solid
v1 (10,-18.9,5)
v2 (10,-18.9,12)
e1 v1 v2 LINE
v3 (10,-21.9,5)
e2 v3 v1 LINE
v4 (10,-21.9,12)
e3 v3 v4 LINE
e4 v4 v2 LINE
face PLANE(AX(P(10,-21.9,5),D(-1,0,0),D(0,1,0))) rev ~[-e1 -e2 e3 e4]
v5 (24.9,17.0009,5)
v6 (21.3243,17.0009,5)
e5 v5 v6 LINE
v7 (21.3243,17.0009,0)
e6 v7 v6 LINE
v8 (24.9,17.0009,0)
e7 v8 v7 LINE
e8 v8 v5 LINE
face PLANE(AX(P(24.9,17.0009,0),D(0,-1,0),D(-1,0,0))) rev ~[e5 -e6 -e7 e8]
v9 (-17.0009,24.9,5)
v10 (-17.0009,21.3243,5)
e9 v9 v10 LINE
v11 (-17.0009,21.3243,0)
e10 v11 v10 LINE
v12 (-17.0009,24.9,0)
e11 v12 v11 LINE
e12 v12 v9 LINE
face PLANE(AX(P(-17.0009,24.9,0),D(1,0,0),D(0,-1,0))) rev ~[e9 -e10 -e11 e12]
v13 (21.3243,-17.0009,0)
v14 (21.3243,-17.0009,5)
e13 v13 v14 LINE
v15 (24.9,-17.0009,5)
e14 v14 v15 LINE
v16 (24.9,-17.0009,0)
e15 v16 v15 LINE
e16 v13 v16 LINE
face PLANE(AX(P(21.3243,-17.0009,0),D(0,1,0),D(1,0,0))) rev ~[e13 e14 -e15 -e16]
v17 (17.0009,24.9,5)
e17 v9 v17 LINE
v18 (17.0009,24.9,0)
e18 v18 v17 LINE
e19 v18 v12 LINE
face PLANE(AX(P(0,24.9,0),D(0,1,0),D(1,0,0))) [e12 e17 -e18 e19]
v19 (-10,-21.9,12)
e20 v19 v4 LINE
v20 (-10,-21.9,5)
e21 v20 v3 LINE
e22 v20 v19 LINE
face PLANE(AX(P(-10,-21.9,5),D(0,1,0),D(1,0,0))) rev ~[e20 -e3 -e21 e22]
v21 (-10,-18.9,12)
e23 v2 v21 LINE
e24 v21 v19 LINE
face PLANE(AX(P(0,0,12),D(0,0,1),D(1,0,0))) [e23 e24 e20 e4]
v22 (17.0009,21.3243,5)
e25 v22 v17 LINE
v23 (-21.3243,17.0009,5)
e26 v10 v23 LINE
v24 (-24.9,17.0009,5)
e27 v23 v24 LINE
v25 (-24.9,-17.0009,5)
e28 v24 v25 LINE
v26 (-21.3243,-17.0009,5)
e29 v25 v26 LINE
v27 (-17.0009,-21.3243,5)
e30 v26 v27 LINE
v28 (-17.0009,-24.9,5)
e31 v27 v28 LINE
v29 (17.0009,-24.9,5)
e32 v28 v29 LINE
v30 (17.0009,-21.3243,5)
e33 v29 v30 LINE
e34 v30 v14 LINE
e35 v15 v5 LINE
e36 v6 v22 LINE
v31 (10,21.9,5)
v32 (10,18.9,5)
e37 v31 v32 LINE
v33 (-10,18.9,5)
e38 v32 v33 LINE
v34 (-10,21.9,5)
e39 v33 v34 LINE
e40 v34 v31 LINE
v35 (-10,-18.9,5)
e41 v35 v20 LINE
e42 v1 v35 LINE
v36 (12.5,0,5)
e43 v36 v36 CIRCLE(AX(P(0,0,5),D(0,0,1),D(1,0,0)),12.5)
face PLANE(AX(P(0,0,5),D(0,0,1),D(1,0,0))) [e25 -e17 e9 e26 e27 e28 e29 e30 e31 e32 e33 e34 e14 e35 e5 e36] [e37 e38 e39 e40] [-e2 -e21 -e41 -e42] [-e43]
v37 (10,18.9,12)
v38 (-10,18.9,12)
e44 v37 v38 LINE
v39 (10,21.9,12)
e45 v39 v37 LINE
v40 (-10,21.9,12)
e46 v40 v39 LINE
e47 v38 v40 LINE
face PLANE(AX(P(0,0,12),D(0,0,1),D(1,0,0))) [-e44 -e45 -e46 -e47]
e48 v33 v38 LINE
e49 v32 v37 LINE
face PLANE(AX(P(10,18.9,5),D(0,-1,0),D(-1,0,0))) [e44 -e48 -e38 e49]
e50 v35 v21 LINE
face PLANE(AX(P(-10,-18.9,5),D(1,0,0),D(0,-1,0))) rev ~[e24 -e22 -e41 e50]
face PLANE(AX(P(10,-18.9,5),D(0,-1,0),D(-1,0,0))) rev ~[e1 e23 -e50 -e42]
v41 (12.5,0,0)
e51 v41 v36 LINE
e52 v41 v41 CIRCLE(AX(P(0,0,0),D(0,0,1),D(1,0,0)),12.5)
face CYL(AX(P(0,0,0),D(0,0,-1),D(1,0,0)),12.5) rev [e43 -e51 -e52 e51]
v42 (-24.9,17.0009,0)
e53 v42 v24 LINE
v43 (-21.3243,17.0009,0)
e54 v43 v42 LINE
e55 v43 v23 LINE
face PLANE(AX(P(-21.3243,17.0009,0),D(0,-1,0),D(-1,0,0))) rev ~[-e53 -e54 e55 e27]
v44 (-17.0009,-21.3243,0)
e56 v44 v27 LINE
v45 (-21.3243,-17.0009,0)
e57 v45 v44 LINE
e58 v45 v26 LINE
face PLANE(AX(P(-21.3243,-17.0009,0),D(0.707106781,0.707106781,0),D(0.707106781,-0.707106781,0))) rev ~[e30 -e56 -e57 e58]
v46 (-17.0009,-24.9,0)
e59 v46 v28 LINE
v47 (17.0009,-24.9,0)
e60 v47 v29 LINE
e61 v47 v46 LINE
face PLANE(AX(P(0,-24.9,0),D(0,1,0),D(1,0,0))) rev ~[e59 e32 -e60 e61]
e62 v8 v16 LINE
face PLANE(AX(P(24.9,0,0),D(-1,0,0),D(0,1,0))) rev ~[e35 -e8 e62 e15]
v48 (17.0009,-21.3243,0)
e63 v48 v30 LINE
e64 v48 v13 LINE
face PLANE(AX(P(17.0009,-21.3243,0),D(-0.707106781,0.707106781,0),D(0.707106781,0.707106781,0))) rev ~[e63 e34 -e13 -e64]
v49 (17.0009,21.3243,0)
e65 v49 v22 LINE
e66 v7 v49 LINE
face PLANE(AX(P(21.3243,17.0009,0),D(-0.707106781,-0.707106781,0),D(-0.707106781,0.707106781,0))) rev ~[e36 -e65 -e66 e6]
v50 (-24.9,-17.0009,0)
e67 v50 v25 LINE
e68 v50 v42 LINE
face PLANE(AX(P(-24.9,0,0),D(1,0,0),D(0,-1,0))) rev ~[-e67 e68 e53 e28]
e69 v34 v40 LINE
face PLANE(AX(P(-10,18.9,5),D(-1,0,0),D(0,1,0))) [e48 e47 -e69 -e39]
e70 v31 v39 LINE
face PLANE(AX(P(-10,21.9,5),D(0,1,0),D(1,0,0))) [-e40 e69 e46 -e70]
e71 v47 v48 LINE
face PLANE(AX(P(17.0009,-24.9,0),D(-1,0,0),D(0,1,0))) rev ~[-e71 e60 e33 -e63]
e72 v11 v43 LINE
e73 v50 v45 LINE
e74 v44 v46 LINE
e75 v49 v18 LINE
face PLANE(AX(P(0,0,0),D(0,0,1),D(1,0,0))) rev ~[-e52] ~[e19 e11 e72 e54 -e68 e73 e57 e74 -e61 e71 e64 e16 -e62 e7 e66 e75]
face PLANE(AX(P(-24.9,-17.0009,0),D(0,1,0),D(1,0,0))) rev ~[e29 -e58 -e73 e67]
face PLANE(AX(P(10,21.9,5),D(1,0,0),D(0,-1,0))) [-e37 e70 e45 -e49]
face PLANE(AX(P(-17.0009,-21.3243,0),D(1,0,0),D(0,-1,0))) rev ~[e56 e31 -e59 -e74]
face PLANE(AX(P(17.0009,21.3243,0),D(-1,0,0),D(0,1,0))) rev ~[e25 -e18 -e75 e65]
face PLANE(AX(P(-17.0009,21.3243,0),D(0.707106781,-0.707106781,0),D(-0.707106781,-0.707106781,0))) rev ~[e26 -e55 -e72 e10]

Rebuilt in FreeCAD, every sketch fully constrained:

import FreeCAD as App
import Part
import Sketcher

V = App.Vector


def add_polygon(sketch, points):
    """Adds a closed chain of lines whose ends are joined by coincident constraints."""
    first, n = sketch.GeometryCount, len(points)
    for a, b in zip(points, points[1:] + points[:1]):
        sketch.addGeometry(Part.LineSegment(App.Vector(*a, 0), App.Vector(*b, 0)), False)
    for i in range(n):
        sketch.addConstraint(Sketcher.Constraint("Coincident", first + i, 2, first + (i + 1) % n, 1))

doc = App.newDocument("Part")
body = doc.addObject("PartDesign::Body", "Body")

# Sketch on XY plane
sketch1 = body.newObject("Sketcher::SketchObject", "Sketch")
sketch1.AttachmentSupport = (doc.getObject("XY_Plane"), [""])
sketch1.MapMode = "FlatFace"
add_polygon(sketch1, [(16.8009, 24.9), (-16.8009, 24.9), (-16.8009, 21.2415), (-21.2415, 16.8009), (-24.9, 16.8009), (-24.9, -16.8009), (-21.2415, -16.8009), (-16.8009, -21.2415), (-16.8009, -24.9), (16.8009, -24.9), (16.8009, -21.2415), (21.2415, -16.8009), (24.9, -16.8009), (24.9, 16.8009), (21.2415, 16.8009), (16.8009, 21.2415)])  # lines 0-15
sketch1.addGeometry(Part.Circle(V(0, 0, 0), V(0, 0, 1), 12.5), False)  # 16
sketch1.addConstraint([
    Sketcher.Constraint("Horizontal", 0),
    Sketcher.Constraint("Vertical", 1),
    Sketcher.Constraint("Horizontal", 3),
    Sketcher.Constraint("Vertical", 4),
    Sketcher.Constraint("Horizontal", 5),
    Sketcher.Constraint("Vertical", 7),
    Sketcher.Constraint("Horizontal", 8),
    Sketcher.Constraint("Vertical", 9),
    Sketcher.Constraint("Horizontal", 11),
    Sketcher.Constraint("Vertical", 12),
    Sketcher.Constraint("Horizontal", 13),
    Sketcher.Constraint("Vertical", 15),
    Sketcher.Constraint("Coincident", 16, 3, -1, 1),
    Sketcher.Constraint("Symmetric", 0, 2, 8, 2, -1, 1),
    Sketcher.Constraint("Symmetric", 2, 2, 10, 2, -1, 1),
    Sketcher.Constraint("Symmetric", 4, 2, 12, 2, -1, 1),
    Sketcher.Constraint("Symmetric", 6, 2, 14, 2, -1, 1),
    Sketcher.Constraint("Symmetric", 6, 2, 9, 2, -2),
    Sketcher.Constraint("Symmetric", 5, 2, 10, 2, -2),
    Sketcher.Constraint("Perpendicular", 2, 6),
    Sketcher.Constraint("Perpendicular", 6, 10),
    Sketcher.Constraint("Perpendicular", 10, 14),
    Sketcher.Constraint("Equal", 13, 1),
    Sketcher.Constraint("Equal", 8, 4),
    Sketcher.Constraint("Diameter", 16, 25.0),
    Sketcher.Constraint("DistanceY", -1, 1, 0, 2, 24.9),
    Sketcher.Constraint("Distance", 2, 6.28),
    Sketcher.Constraint("DistanceX", 0, 2, 0, 1, 33.6018),
])
pad1 = body.newObject("PartDesign::Pad", "Pad")
pad1.Profile = sketch1
pad1.Length = 5

# Sketch on XY plane
sketch2 = body.newObject("Sketcher::SketchObject", "Sketch001")
sketch2.AttachmentSupport = (doc.getObject("XY_Plane"), [""])
sketch2.MapMode = "FlatFace"
sketch2.AttachmentOffset = App.Placement(V(0, 0, 5), App.Rotation())
add_polygon(sketch2, [(10, 21.9), (-10, 21.9), (-10, 18.9), (10, 18.9)])  # lines 0-3
add_polygon(sketch2, [(-10, -18.9), (-10, -21.9), (10, -21.9), (10, -18.9)])  # lines 4-7
sketch2.addConstraint([
    Sketcher.Constraint("Horizontal", 0),
    Sketcher.Constraint("Vertical", 1),
    Sketcher.Constraint("Horizontal", 2),
    Sketcher.Constraint("Vertical", 3),
    Sketcher.Constraint("Vertical", 4),
    Sketcher.Constraint("Horizontal", 5),
    Sketcher.Constraint("Vertical", 6),
    Sketcher.Constraint("Horizontal", 7),
    Sketcher.Constraint("Symmetric", 3, 2, 4, 2, -1, 1),
    Sketcher.Constraint("Symmetric", 1, 2, 6, 2, -1, 1),
    Sketcher.Constraint("Vertical", 1, 2, 4, 2),
    Sketcher.Constraint("DistanceX", 0, 2, 0, 1, 20.0),
    Sketcher.Constraint("DistanceY", 1, 2, 1, 1, 3.0),
    Sketcher.Constraint("DistanceY", -1, 1, 0, 2, 21.9),
])
pad2 = body.newObject("PartDesign::Pad", "Pad001")
pad2.Profile = sketch2
pad2.Length = 7

# Sketch on XY plane
sketch3 = body.newObject("Sketcher::SketchObject", "Sketch002")
sketch3.AttachmentSupport = (doc.getObject("XY_Plane"), [""])
sketch3.MapMode = "FlatFace"
add_polygon(sketch3, [(16.8009, 21.2415), (16.8009, 24.9), (17.0009, 24.9), (17.0009, 21.3243), (21.3243, 17.0009), (24.9, 17.0009), (24.9, 16.8009), (21.2415, 16.8009)])  # lines 0-7
add_polygon(sketch3, [(-17.0009, 24.9), (-16.8009, 24.9), (-16.8009, 21.2415), (-21.2415, 16.8009), (-24.9, 16.8009), (-24.9, 17.0009), (-21.3243, 17.0009), (-17.0009, 21.3243)])  # lines 8-15
add_polygon(sketch3, [(21.2415, -16.8009), (24.9, -16.8009), (24.9, -17.0009), (21.3243, -17.0009), (17.0009, -21.3243), (17.0009, -24.9), (16.8009, -24.9), (16.8009, -21.2415)])  # lines 16-23
add_polygon(sketch3, [(-24.9, -17.0009), (-24.9, -16.8009), (-21.2415, -16.8009), (-16.8009, -21.2415), (-16.8009, -24.9), (-17.0009, -24.9), (-17.0009, -21.3243), (-21.3243, -17.0009)])  # lines 24-31
sketch3.addConstraint([
    Sketcher.Constraint("Vertical", 0),
    Sketcher.Constraint("Horizontal", 1),
    Sketcher.Constraint("Vertical", 2),
    Sketcher.Constraint("Horizontal", 4),
    Sketcher.Constraint("Vertical", 5),
    Sketcher.Constraint("Horizontal", 6),
    Sketcher.Constraint("Horizontal", 8),
    Sketcher.Constraint("Vertical", 9),
    Sketcher.Constraint("Horizontal", 11),
    Sketcher.Constraint("Vertical", 12),
    Sketcher.Constraint("Horizontal", 13),
    Sketcher.Constraint("Vertical", 15),
    Sketcher.Constraint("Horizontal", 16),
    Sketcher.Constraint("Vertical", 17),
    Sketcher.Constraint("Horizontal", 18),
    Sketcher.Constraint("Vertical", 20),
    Sketcher.Constraint("Horizontal", 21),
    Sketcher.Constraint("Vertical", 22),
    Sketcher.Constraint("Vertical", 24),
    Sketcher.Constraint("Horizontal", 25),
    Sketcher.Constraint("Vertical", 27),
    Sketcher.Constraint("Horizontal", 28),
    Sketcher.Constraint("Vertical", 29),
    Sketcher.Constraint("Horizontal", 31),
    Sketcher.Constraint("Symmetric", 11, 2, 16, 2, -1, 1),
    Sketcher.Constraint("Symmetric", 13, 2, 18, 2, -1, 1),
    Sketcher.Constraint("Symmetric", 14, 2, 19, 2, -1, 1),
    Sketcher.Constraint("Symmetric", 8, 2, 21, 2, -1, 1),
    Sketcher.Constraint("Symmetric", 5, 2, 24, 2, -1, 1),
    Sketcher.Constraint("Symmetric", 7, 2, 26, 2, -1, 1),
    Sketcher.Constraint("Symmetric", 1, 2, 28, 2, -1, 1),
    Sketcher.Constraint("Symmetric", 3, 2, 30, 2, -1, 1),
    Sketcher.Constraint("Symmetric", 0, 2, 8, 2, -2),
    Sketcher.Constraint("Symmetric", 6, 2, 10, 2, -2),
    Sketcher.Constraint("Symmetric", 4, 2, 12, 2, -2),
    Sketcher.Constraint("Symmetric", 2, 2, 14, 2, -2),
    Sketcher.Constraint("Parallel", 3, 7),
    Sketcher.Constraint("Perpendicular", 7, 10),
    Sketcher.Constraint("Parallel", 10, 14),
    Sketcher.Constraint("Parallel", 19, 23),
    Sketcher.Constraint("Perpendicular", 23, 26),
    Sketcher.Constraint("Parallel", 26, 30),
    Sketcher.Constraint("Horizontal", 7, 2, 9, 2),
    Sketcher.Constraint("Horizontal", 22, 2, 26, 2),
    Sketcher.Constraint("Equal", 25, 0),
    Sketcher.Constraint("Equal", 31, 2),
    Sketcher.Constraint("DistanceX", 1, 1, 1, 2, 0.2),
    Sketcher.Constraint("DistanceY", -1, 1, 0, 2, 24.9),
    Sketcher.Constraint("DistanceX", -1, 1, 4, 2, 24.9),
    Sketcher.Constraint("Distance", 7, 6.28),
    Sketcher.Constraint("DistanceX", 4, 1, 4, 2, 3.5757),
    Sketcher.Constraint("DistanceX", 6, 2, 6, 1, 3.6585),
])
pad3 = body.newObject("PartDesign::Pad", "Pad002")
pad3.Profile = sketch3
pad3.Length = 5

doc.recompute()
